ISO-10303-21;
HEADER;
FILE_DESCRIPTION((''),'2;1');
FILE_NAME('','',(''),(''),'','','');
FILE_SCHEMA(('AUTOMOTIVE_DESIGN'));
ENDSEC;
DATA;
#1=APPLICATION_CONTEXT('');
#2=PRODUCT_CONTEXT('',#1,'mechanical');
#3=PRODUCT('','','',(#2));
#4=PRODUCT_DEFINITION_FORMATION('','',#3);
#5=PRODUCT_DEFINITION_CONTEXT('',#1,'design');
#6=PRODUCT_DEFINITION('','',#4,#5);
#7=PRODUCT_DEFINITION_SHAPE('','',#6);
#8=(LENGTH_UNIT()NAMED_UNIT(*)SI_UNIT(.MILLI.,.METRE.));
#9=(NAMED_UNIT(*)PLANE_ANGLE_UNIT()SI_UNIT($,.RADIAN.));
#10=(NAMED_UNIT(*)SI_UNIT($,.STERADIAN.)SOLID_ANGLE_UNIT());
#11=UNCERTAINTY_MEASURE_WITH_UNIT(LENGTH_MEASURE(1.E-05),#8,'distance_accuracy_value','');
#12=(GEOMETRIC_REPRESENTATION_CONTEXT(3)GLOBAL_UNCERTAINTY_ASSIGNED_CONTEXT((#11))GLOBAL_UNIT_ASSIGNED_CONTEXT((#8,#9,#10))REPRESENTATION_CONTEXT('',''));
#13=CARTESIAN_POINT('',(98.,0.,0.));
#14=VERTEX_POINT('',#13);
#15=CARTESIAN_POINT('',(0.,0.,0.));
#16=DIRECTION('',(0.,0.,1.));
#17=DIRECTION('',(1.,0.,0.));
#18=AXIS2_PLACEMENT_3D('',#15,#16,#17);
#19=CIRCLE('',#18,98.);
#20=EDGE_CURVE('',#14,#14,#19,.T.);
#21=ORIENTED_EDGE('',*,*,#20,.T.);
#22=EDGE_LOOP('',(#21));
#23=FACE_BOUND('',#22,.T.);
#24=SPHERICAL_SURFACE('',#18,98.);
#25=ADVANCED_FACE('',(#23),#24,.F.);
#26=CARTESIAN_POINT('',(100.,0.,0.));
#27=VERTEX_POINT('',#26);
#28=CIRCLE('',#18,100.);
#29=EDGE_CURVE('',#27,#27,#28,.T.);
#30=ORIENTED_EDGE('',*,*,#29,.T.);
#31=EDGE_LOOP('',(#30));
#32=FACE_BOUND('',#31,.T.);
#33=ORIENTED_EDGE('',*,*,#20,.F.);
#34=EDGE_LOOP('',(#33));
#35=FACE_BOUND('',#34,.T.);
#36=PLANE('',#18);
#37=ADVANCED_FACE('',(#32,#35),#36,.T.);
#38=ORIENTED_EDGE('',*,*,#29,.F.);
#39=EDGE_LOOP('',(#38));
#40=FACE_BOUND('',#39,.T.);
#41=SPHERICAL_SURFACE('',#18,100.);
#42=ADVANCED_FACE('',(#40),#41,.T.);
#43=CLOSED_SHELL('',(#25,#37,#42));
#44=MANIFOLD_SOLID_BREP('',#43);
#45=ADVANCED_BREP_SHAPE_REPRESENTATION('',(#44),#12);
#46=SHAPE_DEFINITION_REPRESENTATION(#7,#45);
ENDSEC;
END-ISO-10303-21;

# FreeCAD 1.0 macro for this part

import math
import FreeCAD as App
import Part
import Sketcher
from FreeCAD import Vector

doc = App.newDocument("Part")
body = doc.addObject("PartDesign::Body", "Body")

# Sketch on XY plane
sketch1 = body.newObject("Sketcher::SketchObject", "Sketch")
sketch1.AttachmentSupport = (doc.getObject("XY_Plane"), [""])
sketch1.MapMode = "FlatFace"
sketch1.addGeometry([
    Part.LineSegment(Vector(0, 100, 0), Vector(0, -100, 0)),
    Part.ArcOfCircle(Part.Circle(Vector(0, 0, 0), Vector(0, 0, 1), 100), math.radians(-90), math.radians(90)),
], False)
sketch1.addConstraint([
    Sketcher.Constraint("Coincident", 0, 1, 1, 2),
    Sketcher.Constraint("Coincident", 1, 1, 0, 2),
    Sketcher.Constraint("Vertical", 0),
    Sketcher.Constraint("Coincident", 1, 3, -1, 1),
    Sketcher.Constraint("PointOnObject", 0, 1, -2),
    Sketcher.Constraint("Radius", 1, 100.0),
])
revolution = body.newObject("PartDesign::Revolution", "Revolution")
revolution.Profile = sketch1
revolution.ReferenceAxis = (sketch1, ["V_Axis"])
revolution.Angle = 360

# Sketch on XY plane
sketch2 = body.newObject("Sketcher::SketchObject", "Sketch001")
sketch2.AttachmentSupport = (doc.getObject("XY_Plane"), [""])
sketch2.MapMode = "FlatFace"
sketch2.addGeometry([
    Part.LineSegment(Vector(0, 98, 0), Vector(0, -98, 0)),
    Part.ArcOfCircle(Part.Circle(Vector(0, 0, 0), Vector(0, 0, 1), 98), math.radians(-90), math.radians(90)),
], False)
sketch2.addConstraint([
    Sketcher.Constraint("Coincident", 0, 1, 1, 2),
    Sketcher.Constraint("Coincident", 1, 1, 0, 2),
    Sketcher.Constraint("Vertical", 0),
    Sketcher.Constraint("Coincident", 1, 3, -1, 1),
    Sketcher.Constraint("PointOnObject", 0, 1, -2),
    Sketcher.Constraint("Radius", 1, 98.0),
])
groove = body.newObject("PartDesign::Groove", "Groove")
groove.Profile = sketch2
groove.ReferenceAxis = (sketch2, ["V_Axis"])
groove.Angle = 360

# Sketch on XY plane
sketch3 = body.newObject("Sketcher::SketchObject", "Sketch002")
sketch3.AttachmentSupport = (doc.getObject("XY_Plane"), [""])
sketch3.MapMode = "FlatFace"
sketch3.addGeometry(Part.Circle(Vector(0, 0, 0), Vector(0, 0, 1), 100), False)
sketch3.addConstraint([
    Sketcher.Constraint("Coincident", 0, 3, -1, 1),
    Sketcher.Constraint("Diameter", 0, 200.0),
])
pocket1 = body.newObject("PartDesign::Pocket", "Pocket")
pocket1.Profile = sketch3
pocket1.Type = "ThroughAll"
pocket1.Reversed = True

doc.recompute()
